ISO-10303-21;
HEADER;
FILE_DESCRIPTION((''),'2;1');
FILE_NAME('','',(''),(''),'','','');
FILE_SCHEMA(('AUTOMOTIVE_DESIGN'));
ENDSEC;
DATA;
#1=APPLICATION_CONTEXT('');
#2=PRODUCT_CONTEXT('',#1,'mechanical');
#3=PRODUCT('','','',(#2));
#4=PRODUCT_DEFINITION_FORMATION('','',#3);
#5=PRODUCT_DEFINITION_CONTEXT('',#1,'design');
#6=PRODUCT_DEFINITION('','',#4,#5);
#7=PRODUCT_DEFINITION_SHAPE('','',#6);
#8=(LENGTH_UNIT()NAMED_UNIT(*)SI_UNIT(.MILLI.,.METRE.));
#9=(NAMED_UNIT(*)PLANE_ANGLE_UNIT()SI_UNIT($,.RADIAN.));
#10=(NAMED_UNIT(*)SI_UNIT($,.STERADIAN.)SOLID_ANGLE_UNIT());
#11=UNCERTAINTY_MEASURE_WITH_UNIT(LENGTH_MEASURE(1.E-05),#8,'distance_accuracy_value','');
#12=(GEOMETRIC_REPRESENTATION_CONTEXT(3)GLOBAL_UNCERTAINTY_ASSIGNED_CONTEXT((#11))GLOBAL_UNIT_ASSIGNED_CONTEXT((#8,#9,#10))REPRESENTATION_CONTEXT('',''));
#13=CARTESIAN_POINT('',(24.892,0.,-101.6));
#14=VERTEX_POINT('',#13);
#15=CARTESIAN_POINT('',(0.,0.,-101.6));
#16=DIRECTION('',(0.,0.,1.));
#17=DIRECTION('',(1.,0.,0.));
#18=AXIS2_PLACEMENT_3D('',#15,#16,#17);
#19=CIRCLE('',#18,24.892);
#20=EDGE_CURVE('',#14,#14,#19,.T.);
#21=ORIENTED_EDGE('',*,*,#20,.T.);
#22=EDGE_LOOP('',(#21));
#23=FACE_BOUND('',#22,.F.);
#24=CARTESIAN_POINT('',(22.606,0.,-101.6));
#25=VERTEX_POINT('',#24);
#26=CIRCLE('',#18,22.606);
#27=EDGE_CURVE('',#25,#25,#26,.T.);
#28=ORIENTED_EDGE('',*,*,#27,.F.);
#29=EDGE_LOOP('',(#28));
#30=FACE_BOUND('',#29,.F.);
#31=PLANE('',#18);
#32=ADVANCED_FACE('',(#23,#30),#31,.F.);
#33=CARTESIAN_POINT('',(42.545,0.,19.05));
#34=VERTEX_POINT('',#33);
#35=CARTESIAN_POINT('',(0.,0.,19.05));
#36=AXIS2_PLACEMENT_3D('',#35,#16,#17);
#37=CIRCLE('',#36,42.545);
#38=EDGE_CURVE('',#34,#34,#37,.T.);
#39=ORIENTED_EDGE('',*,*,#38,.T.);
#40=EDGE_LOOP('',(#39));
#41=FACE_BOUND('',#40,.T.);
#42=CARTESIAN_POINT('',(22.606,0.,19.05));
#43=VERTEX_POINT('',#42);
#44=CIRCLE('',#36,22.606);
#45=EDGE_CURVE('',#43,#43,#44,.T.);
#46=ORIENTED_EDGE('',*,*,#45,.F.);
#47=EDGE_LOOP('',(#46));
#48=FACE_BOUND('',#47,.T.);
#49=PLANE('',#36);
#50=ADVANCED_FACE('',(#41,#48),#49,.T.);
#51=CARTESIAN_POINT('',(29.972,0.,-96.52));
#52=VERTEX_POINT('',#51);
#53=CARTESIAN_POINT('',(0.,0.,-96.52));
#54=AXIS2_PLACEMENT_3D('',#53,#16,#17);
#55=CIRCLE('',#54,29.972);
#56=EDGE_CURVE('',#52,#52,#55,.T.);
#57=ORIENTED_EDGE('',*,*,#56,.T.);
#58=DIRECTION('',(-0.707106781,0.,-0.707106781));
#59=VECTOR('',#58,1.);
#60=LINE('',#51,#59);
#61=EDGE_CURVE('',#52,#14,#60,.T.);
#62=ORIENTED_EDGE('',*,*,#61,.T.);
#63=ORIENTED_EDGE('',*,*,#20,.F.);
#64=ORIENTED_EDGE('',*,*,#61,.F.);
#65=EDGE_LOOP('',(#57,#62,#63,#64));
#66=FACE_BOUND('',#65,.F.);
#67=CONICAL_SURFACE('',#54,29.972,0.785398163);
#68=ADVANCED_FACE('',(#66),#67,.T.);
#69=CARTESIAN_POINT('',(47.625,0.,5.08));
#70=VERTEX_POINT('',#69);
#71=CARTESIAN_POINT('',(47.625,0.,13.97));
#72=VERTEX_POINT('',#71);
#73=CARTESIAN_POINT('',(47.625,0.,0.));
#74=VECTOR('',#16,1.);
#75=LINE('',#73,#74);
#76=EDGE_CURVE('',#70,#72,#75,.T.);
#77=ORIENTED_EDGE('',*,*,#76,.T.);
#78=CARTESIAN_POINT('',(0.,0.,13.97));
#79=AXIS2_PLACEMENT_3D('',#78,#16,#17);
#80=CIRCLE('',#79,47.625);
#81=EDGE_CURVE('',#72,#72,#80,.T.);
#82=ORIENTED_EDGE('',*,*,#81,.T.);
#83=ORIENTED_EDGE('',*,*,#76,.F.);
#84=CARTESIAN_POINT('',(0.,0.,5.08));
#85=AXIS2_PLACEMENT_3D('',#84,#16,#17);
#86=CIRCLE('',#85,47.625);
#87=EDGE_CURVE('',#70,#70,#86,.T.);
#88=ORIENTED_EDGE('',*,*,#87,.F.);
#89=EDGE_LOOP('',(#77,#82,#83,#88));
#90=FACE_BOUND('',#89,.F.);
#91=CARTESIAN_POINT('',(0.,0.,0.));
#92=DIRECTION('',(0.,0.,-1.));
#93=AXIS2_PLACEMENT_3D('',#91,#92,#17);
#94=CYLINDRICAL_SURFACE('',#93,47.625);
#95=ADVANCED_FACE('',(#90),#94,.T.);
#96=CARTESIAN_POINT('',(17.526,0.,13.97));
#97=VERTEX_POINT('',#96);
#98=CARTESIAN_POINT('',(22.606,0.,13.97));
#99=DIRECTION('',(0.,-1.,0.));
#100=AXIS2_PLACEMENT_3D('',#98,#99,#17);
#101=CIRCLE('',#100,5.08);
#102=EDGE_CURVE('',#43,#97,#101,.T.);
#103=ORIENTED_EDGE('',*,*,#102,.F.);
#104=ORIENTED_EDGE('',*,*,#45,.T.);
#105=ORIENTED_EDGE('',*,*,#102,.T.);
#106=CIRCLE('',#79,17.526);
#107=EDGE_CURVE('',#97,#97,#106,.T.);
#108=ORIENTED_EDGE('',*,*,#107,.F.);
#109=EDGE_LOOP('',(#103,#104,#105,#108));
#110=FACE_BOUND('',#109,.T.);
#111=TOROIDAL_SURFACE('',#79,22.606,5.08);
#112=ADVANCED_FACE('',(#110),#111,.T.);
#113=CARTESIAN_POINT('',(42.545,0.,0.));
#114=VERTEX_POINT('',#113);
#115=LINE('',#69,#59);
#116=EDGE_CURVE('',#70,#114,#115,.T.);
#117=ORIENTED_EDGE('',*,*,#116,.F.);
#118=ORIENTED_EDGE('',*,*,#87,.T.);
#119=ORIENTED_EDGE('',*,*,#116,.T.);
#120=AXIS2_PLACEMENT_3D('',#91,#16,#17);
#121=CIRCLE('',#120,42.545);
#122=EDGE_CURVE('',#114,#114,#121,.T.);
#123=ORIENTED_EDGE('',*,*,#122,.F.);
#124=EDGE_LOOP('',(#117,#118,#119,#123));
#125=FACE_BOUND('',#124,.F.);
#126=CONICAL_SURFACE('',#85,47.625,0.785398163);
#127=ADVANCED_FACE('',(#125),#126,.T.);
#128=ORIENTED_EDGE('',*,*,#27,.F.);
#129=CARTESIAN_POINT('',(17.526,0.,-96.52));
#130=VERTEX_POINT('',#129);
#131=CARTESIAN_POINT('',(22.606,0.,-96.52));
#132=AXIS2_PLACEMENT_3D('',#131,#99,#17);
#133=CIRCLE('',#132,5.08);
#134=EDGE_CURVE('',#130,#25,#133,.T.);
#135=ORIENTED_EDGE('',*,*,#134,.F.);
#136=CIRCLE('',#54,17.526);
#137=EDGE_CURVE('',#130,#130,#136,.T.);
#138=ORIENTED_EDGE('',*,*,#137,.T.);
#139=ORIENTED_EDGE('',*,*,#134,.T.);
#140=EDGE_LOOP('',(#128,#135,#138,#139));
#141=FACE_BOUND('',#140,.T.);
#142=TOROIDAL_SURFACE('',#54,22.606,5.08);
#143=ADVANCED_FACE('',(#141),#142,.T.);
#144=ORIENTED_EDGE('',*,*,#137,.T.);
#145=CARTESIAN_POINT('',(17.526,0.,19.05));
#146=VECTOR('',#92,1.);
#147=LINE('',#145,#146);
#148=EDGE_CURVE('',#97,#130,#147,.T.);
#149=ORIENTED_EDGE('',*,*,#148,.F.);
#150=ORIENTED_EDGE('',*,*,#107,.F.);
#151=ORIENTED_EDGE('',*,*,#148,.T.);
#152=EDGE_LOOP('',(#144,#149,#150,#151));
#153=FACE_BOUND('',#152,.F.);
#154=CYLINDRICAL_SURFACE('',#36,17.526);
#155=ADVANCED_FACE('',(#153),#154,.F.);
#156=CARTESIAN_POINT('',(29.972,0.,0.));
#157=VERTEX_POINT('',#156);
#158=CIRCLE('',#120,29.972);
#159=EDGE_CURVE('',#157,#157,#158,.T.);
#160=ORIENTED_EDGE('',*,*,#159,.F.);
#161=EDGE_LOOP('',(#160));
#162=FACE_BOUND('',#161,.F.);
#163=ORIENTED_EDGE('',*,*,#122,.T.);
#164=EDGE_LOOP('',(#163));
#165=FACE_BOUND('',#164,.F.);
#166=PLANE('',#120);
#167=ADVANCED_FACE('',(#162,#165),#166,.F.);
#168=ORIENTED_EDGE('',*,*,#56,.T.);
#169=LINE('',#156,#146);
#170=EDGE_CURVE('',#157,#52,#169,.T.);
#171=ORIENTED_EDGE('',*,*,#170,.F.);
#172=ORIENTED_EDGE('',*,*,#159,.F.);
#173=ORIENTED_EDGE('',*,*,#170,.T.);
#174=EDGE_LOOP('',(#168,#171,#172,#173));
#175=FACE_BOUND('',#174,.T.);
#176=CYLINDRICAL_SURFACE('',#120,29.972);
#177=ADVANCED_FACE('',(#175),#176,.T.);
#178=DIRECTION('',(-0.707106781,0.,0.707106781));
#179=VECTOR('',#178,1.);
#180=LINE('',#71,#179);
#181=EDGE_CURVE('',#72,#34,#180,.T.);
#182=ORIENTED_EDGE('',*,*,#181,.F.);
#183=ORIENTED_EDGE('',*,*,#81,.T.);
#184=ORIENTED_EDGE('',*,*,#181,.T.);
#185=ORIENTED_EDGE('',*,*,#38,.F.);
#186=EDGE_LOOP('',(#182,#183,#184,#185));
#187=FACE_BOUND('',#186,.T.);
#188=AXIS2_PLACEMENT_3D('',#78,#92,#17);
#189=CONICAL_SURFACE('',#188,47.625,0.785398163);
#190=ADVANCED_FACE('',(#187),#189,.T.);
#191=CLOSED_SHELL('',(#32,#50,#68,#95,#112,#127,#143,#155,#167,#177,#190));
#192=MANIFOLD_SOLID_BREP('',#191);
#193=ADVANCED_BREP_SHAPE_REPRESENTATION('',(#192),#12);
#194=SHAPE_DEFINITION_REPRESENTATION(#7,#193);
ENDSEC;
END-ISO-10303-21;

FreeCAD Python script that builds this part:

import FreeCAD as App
import Part
import Sketcher
from FreeCAD import Vector
Q = App.Units.Quantity


def edges_at(feature, points):
    """Names of the edges that pass closest to the given points."""
    edges = feature.Shape.Edges
    near = lambda p: min(range(len(edges)), key=lambda i: edges[i].distToShape(Part.Vertex(*p))[0])
    return sorted({f"Edge{near(p) + 1}" for p in points})

doc = App.newDocument("Part")
body = doc.addObject("PartDesign::Body", "Body")

# Sketch on XY plane
sketch1 = doc.addObject("Sketcher::SketchObject", "Sketch")
body.addObject(sketch1)
sketch1.AttachmentSupport = (doc.XY_Plane, [""])
sketch1.MapMode = "FlatFace"
sketch1.addGeometry(Part.Circle(Vector(0, 0, 0), Vector(0, 0, 1), 30), False)
sketch1.addConstraint([
    Sketcher.Constraint("Coincident", 0, 3, -1, 1),
    Sketcher.Constraint("Diameter", 0, Q("2.36 in")),
])
pad1 = doc.addObject("PartDesign::Pad", "Pad")
body.addObject(pad1)
pad1.Profile = sketch1
pad1.Length = Q("4 in")
pad1.Reversed = True

# Sketch on XY plane
sketch2 = doc.addObject("Sketcher::SketchObject", "Sketch001")
body.addObject(sketch2)
sketch2.AttachmentSupport = (doc.XY_Plane, [""])
sketch2.MapMode = "FlatFace"
sketch2.addGeometry(Part.Circle(Vector(0, 0, 0), Vector(0, 0, 1), 48), False)
sketch2.addConstraint([
    Sketcher.Constraint("Coincident", 0, 3, -1, 1),
    Sketcher.Constraint("Diameter", 0, Q("3.75 in")),
])
pad2 = doc.addObject("PartDesign::Pad", "Pad001")
body.addObject(pad2)
pad2.Profile = sketch2
pad2.Length = Q("0.75 in")

# Sketch on XY plane
sketch3 = doc.addObject("Sketcher::SketchObject", "Sketch002")
body.addObject(sketch3)
sketch3.AttachmentSupport = (doc.XY_Plane, [""])
sketch3.MapMode = "FlatFace"
sketch3.AttachmentOffset = App.Placement(Vector(0, 0, 0.75 * 25.4), App.Rotation())
sketch3.addGeometry(Part.Circle(Vector(0, 0, 0), Vector(0, 0, 1), 18), False)
sketch3.addConstraint([
    Sketcher.Constraint("Coincident", 0, 3, -1, 1),
    Sketcher.Constraint("Diameter", 0, Q("1.38 in")),
])
pocket1 = doc.addObject("PartDesign::Pocket", "Pocket")
body.addObject(pocket1)
pocket1.Profile = sketch3
pocket1.Type = "ThroughAll"
doc.recompute()

chamfer = doc.addObject("PartDesign::Chamfer", "Chamfer")
body.addObject(chamfer)
chamfer.Base = (pocket1, edges_at(pocket1, [(-29.972, 0, -101.6), (-47.625, 0, 0), (-47.625, 0, 19.05)]))
chamfer.Size = Q("0.2 in")
doc.recompute()

fillet = doc.addObject("PartDesign::Fillet", "Fillet")
body.addObject(fillet)
fillet.Base = (chamfer, edges_at(chamfer, [(-17.526, 0, 19.05), (-17.526, 0, -101.6)]))
fillet.Radius = Q("0.2 in")

doc.recompute()
